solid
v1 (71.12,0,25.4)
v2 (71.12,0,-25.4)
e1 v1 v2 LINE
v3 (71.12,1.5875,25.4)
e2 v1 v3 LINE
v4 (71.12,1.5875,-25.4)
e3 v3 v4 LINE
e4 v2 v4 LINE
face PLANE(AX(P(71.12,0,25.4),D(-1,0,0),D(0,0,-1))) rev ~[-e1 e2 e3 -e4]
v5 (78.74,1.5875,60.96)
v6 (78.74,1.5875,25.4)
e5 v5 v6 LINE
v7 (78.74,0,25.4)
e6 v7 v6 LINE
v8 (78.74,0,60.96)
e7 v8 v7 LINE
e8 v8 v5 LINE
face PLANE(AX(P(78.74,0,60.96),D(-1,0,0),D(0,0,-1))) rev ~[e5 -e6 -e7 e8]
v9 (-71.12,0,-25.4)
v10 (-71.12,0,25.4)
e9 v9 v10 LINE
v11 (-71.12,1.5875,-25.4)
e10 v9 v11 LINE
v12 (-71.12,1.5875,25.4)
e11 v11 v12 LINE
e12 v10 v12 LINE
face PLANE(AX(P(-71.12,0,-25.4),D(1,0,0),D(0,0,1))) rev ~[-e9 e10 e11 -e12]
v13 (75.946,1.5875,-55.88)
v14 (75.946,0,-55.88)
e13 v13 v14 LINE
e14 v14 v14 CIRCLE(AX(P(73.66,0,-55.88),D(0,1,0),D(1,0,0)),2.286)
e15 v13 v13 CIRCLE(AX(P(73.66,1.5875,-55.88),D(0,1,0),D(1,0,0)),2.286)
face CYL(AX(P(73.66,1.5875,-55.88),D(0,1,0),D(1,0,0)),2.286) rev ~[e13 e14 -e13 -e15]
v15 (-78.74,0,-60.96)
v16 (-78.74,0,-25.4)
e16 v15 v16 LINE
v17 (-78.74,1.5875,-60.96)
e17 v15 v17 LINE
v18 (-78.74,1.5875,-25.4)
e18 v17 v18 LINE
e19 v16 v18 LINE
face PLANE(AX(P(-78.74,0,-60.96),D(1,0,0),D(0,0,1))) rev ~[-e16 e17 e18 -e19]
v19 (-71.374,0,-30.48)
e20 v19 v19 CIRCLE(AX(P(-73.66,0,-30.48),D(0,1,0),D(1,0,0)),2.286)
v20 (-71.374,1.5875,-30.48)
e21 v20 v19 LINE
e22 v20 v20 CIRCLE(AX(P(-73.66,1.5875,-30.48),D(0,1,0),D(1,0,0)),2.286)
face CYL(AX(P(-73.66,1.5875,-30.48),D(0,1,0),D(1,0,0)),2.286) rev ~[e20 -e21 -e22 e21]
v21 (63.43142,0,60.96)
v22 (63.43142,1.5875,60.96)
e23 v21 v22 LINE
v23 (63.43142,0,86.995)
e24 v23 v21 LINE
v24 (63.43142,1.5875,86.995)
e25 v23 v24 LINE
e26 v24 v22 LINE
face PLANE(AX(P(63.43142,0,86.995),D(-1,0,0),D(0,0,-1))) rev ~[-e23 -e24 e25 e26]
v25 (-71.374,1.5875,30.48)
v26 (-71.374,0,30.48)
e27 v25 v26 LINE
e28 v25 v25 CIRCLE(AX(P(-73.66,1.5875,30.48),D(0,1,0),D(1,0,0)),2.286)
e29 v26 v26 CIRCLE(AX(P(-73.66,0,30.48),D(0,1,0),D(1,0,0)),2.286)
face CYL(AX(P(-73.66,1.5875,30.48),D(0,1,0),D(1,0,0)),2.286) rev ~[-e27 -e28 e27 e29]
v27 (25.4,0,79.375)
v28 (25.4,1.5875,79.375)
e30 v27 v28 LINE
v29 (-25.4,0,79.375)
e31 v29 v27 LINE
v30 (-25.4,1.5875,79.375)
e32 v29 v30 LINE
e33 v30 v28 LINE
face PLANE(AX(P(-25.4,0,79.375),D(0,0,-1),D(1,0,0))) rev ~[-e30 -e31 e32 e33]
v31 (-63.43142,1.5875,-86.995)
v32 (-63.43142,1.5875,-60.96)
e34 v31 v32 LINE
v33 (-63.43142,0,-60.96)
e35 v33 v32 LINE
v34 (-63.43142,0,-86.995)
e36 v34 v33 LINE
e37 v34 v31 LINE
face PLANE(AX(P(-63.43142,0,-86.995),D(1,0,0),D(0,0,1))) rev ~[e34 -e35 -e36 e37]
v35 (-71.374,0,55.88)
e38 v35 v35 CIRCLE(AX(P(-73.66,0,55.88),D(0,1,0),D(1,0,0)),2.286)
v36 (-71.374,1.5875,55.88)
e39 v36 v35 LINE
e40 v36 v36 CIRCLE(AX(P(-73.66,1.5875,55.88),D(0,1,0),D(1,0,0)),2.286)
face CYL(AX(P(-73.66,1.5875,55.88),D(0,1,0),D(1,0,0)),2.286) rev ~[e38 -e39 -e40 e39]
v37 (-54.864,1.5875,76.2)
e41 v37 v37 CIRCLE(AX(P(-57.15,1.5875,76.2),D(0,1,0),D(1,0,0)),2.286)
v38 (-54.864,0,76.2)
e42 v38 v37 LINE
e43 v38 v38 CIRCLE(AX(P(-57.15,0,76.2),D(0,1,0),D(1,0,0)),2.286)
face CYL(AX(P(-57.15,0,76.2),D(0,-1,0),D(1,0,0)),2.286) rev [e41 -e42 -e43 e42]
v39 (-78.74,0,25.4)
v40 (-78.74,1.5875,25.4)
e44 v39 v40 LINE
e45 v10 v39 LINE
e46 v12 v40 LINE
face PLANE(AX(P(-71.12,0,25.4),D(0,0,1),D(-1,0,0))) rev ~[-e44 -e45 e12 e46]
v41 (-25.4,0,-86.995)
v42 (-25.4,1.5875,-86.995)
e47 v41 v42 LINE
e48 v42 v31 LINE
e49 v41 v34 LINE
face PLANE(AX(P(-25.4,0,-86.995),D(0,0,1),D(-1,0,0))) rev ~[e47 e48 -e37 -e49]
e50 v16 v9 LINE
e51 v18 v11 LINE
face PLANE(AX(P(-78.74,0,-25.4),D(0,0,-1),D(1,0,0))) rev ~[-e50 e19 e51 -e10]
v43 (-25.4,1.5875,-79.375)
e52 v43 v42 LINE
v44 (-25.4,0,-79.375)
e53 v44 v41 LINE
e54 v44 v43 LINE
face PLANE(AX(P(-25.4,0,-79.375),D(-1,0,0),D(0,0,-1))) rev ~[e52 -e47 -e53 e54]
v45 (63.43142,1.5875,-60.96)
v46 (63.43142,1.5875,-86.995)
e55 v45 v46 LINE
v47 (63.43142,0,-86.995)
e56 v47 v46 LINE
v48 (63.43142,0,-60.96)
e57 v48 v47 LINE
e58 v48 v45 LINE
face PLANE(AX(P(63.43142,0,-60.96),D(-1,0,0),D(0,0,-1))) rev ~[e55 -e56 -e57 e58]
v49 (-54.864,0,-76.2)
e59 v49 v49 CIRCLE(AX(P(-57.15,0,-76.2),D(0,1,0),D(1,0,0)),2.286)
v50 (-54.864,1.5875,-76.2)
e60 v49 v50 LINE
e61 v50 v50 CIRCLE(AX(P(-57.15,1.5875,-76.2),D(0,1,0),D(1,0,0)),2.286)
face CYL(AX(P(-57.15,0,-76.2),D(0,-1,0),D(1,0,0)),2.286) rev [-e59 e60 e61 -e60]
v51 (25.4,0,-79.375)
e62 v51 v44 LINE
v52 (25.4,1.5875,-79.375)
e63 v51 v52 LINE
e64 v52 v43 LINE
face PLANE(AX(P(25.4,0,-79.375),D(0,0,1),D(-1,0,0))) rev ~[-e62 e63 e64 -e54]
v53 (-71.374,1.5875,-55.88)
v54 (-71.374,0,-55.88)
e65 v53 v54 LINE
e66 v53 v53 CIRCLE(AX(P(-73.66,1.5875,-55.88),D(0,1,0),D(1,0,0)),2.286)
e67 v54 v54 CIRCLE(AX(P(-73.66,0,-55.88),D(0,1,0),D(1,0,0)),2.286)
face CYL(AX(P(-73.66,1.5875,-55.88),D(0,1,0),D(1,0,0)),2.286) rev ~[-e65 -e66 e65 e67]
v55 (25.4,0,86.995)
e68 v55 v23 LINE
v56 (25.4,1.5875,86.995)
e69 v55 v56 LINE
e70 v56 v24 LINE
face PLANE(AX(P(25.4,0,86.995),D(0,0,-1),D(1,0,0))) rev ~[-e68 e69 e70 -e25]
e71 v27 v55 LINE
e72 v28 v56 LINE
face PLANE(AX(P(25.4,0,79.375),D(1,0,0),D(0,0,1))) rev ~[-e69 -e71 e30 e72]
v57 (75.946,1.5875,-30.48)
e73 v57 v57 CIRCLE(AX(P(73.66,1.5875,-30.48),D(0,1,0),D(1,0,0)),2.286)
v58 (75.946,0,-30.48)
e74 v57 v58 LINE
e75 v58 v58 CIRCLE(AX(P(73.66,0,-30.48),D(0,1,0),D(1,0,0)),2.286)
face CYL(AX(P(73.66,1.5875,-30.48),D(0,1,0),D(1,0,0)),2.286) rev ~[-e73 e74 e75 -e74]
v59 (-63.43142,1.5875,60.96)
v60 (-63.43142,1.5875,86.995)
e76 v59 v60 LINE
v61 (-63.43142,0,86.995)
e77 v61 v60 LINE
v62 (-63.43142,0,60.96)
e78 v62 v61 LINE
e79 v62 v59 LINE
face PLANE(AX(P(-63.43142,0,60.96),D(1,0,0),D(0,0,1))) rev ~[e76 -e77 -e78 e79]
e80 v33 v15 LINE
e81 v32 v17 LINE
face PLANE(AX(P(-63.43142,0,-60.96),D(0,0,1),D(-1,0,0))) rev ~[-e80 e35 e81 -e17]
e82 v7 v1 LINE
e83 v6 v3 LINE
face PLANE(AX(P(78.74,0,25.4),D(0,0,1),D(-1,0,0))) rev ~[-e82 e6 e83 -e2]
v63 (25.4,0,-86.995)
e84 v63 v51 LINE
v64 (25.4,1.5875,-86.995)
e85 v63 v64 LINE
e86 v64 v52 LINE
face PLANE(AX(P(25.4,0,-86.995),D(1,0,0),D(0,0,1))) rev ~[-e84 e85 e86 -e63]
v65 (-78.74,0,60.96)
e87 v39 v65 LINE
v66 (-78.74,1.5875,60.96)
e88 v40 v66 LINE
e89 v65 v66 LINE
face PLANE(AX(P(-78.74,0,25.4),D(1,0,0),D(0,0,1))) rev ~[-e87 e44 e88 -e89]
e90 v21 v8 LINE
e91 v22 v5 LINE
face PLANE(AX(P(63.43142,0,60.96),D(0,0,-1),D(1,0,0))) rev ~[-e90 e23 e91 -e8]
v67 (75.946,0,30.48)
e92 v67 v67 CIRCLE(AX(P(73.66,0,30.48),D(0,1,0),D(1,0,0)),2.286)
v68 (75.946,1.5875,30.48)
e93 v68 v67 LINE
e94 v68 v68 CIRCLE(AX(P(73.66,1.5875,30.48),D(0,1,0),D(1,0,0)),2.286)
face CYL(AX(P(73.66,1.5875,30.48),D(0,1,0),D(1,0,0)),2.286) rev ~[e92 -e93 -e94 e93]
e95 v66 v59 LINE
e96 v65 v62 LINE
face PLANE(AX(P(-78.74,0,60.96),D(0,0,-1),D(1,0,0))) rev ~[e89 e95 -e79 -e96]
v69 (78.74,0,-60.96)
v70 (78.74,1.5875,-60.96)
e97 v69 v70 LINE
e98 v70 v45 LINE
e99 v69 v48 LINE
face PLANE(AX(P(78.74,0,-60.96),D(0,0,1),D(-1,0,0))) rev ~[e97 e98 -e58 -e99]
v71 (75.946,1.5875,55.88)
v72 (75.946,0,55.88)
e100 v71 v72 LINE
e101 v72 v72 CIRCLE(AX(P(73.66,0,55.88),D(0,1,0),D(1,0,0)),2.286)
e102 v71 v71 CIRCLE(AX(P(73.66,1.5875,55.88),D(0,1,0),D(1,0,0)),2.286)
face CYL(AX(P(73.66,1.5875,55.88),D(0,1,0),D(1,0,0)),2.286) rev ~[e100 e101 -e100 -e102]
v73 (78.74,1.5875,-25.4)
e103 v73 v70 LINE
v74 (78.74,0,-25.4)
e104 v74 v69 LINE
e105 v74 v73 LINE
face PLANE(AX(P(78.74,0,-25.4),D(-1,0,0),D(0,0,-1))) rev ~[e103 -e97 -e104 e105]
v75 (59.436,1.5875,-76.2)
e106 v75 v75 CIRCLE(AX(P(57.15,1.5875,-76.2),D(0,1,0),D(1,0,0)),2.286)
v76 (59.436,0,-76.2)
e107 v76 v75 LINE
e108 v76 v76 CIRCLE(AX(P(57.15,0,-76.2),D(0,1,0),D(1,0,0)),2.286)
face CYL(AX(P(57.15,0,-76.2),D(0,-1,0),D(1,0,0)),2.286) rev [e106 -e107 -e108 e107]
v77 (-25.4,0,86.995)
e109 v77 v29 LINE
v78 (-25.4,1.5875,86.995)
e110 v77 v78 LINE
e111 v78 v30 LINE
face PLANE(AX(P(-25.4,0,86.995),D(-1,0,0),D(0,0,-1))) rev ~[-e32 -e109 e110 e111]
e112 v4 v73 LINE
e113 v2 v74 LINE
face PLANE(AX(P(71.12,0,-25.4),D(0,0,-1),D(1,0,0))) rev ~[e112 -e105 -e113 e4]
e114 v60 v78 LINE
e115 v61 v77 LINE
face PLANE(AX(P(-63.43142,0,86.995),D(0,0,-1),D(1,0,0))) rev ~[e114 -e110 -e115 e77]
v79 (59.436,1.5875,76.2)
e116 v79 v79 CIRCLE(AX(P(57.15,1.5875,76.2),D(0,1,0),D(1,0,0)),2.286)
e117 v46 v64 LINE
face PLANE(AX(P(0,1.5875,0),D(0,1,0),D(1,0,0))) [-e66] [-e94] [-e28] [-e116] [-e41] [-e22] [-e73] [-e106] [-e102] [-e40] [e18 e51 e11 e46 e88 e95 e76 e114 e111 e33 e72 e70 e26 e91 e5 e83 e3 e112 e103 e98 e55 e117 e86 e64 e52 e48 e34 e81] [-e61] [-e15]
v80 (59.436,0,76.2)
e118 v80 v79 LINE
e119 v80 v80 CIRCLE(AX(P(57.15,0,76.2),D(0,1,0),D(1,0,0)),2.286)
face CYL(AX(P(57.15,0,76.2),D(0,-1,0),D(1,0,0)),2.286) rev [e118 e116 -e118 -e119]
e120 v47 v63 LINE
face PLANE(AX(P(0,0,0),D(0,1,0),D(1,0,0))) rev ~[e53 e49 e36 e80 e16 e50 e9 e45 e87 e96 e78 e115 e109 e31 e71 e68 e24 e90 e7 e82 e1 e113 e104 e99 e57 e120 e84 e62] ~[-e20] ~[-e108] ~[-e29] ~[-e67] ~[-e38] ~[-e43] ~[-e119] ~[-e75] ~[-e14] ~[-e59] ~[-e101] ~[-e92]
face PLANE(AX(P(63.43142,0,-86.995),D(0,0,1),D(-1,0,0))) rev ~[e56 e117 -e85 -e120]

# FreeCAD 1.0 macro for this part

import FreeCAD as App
import Part
import Sketcher
Q = App.Units.Quantity

doc = App.newDocument("Part")
body = doc.addObject("PartDesign::Body", "Body")

sketch1 = body.newObject("Sketcher::SketchObject", "Sketch")
sketch1.AttachmentSupport = (doc.getObject("XZ_Plane"), [""])
sketch1.MapMode = "FlatFace"
sketch1.addGeometry([
    Part.LineSegment(App.Vector(-25.4, -87, 0), App.Vector(-63.4, -87, 0)),
    Part.LineSegment(App.Vector(-63.4, -87, 0), App.Vector(-63.4, -61, 0)),
    Part.LineSegment(App.Vector(-63.4, -61, 0), App.Vector(-78.7, -61, 0)),
    Part.LineSegment(App.Vector(-78.7, -61, 0), App.Vector(-78.7, -25.4, 0)),
    Part.LineSegment(App.Vector(-78.7, -25.4, 0), App.Vector(-71.1, -25.4, 0)),
    Part.LineSegment(App.Vector(-71.1, -25.4, 0), App.Vector(-71.1, 25.4, 0)),
    Part.LineSegment(App.Vector(-71.1, 25.4, 0), App.Vector(-78.7, 25.4, 0)),
    Part.LineSegment(App.Vector(-78.7, 25.4, 0), App.Vector(-78.7, 61, 0)),
    Part.LineSegment(App.Vector(-78.7, 61, 0), App.Vector(-63.4, 61, 0)),
    Part.LineSegment(App.Vector(-63.4, 61, 0), App.Vector(-63.4, 87, 0)),
    Part.LineSegment(App.Vector(-63.4, 87, 0), App.Vector(-25.4, 87, 0)),
    Part.LineSegment(App.Vector(-25.4, 87, 0), App.Vector(-25.4, 79.4, 0)),
    Part.LineSegment(App.Vector(-25.4, 79.4, 0), App.Vector(25.4, 79.4, 0)),
    Part.LineSegment(App.Vector(25.4, 79.4, 0), App.Vector(25.4, 87, 0)),
    Part.LineSegment(App.Vector(25.4, 87, 0), App.Vector(63.4, 87, 0)),
    Part.LineSegment(App.Vector(63.4, 87, 0), App.Vector(63.4, 61, 0)),
    Part.LineSegment(App.Vector(63.4, 61, 0), App.Vector(78.7, 61, 0)),
    Part.LineSegment(App.Vector(78.7, 61, 0), App.Vector(78.7, 25.4, 0)),
    Part.LineSegment(App.Vector(78.7, 25.4, 0), App.Vector(71.1, 25.4, 0)),
    Part.LineSegment(App.Vector(71.1, 25.4, 0), App.Vector(71.1, -25.4, 0)),
    Part.LineSegment(App.Vector(71.1, -25.4, 0), App.Vector(78.7, -25.4, 0)),
    Part.LineSegment(App.Vector(78.7, -25.4, 0), App.Vector(78.7, -61, 0)),
    Part.LineSegment(App.Vector(78.7, -61, 0), App.Vector(63.4, -61, 0)),
    Part.LineSegment(App.Vector(63.4, -61, 0), App.Vector(63.4, -87, 0)),
    Part.LineSegment(App.Vector(63.4, -87, 0), App.Vector(25.4, -87, 0)),
    Part.LineSegment(App.Vector(25.4, -87, 0), App.Vector(25.4, -79.4, 0)),
    Part.LineSegment(App.Vector(25.4, -79.4, 0), App.Vector(-25.4, -79.4, 0)),
    Part.LineSegment(App.Vector(-25.4, -79.4, 0), App.Vector(-25.4, -87, 0)),
    Part.Circle(App.Vector(-57.1, 76.2, 0), App.Vector(0, 0, 1), 2.3),
    Part.Circle(App.Vector(57.1, 76.2, 0), App.Vector(0, 0, 1), 2.3),
    Part.Circle(App.Vector(-57.1, -76.2, 0), App.Vector(0, 0, 1), 2.3),
    Part.Circle(App.Vector(57.1, -76.2, 0), App.Vector(0, 0, 1), 2.3),
], False)
sketch1.addConstraint([
    Sketcher.Constraint("Coincident", 0, 2, 1, 1),
    Sketcher.Constraint("Coincident", 1, 2, 2, 1),
    Sketcher.Constraint("Coincident", 2, 2, 3, 1),
    Sketcher.Constraint("Coincident", 3, 2, 4, 1),
    Sketcher.Constraint("Coincident", 4, 2, 5, 1),
    Sketcher.Constraint("Coincident", 5, 2, 6, 1),
    Sketcher.Constraint("Coincident", 6, 2, 7, 1),
    Sketcher.Constraint("Coincident", 7, 2, 8, 1),
    Sketcher.Constraint("Coincident", 8, 2, 9, 1),
    Sketcher.Constraint("Coincident", 9, 2, 10, 1),
    Sketcher.Constraint("Coincident", 10, 2, 11, 1),
    Sketcher.Constraint("Coincident", 11, 2, 12, 1),
    Sketcher.Constraint("Coincident", 12, 2, 13, 1),
    Sketcher.Constraint("Coincident", 13, 2, 14, 1),
    Sketcher.Constraint("Coincident", 14, 2, 15, 1),
    Sketcher.Constraint("Coincident", 15, 2, 16, 1),
    Sketcher.Constraint("Coincident", 16, 2, 17, 1),
    Sketcher.Constraint("Coincident", 17, 2, 18, 1),
    Sketcher.Constraint("Coincident", 18, 2, 19, 1),
    Sketcher.Constraint("Coincident", 19, 2, 20, 1),
    Sketcher.Constraint("Coincident", 20, 2, 21, 1),
    Sketcher.Constraint("Coincident", 21, 2, 22, 1),
    Sketcher.Constraint("Coincident", 22, 2, 23, 1),
    Sketcher.Constraint("Coincident", 23, 2, 24, 1),
    Sketcher.Constraint("Coincident", 24, 2, 25, 1),
    Sketcher.Constraint("Coincident", 25, 2, 26, 1),
    Sketcher.Constraint("Coincident", 26, 2, 27, 1),
    Sketcher.Constraint("Coincident", 27, 2, 0, 1),
    Sketcher.Constraint("Horizontal", 0),
    Sketcher.Constraint("Vertical", 1),
    Sketcher.Constraint("Horizontal", 2),
    Sketcher.Constraint("Vertical", 3),
    Sketcher.Constraint("Horizontal", 4),
    Sketcher.Constraint("Vertical", 5),
    Sketcher.Constraint("Horizontal", 6),
    Sketcher.Constraint("Vertical", 7),
    Sketcher.Constraint("Horizontal", 8),
    Sketcher.Constraint("Vertical", 9),
    Sketcher.Constraint("Horizontal", 10),
    Sketcher.Constraint("Vertical", 11),
    Sketcher.Constraint("Horizontal", 12),
    Sketcher.Constraint("Vertical", 13),
    Sketcher.Constraint("Horizontal", 14),
    Sketcher.Constraint("Vertical", 15),
    Sketcher.Constraint("Horizontal", 16),
    Sketcher.Constraint("Vertical", 17),
    Sketcher.Constraint("Horizontal", 18),
    Sketcher.Constraint("Vertical", 19),
    Sketcher.Constraint("Horizontal", 20),
    Sketcher.Constraint("Vertical", 21),
    Sketcher.Constraint("Horizontal", 22),
    Sketcher.Constraint("Vertical", 23),
    Sketcher.Constraint("Horizontal", 24),
    Sketcher.Constraint("Vertical", 25),
    Sketcher.Constraint("Horizontal", 26),
    Sketcher.Constraint("Vertical", 27),
    Sketcher.Constraint("Equal", 28, 29),
    Sketcher.Constraint("Equal", 29, 30),
    Sketcher.Constraint("Equal", 30, 31),
    Sketcher.Constraint("Symmetric", 29, 3, 30, 3, -1, 1),
    Sketcher.Constraint("Symmetric", 28, 3, 31, 3, -1, 1),
    Sketcher.Constraint("Symmetric", 0, 2, 14, 2, -1, 1),
    Sketcher.Constraint("Symmetric", 2, 2, 16, 2, -1, 1),
    Sketcher.Constraint("Symmetric", 4, 2, 18, 2, -1, 1),
    Sketcher.Constraint("Symmetric", 6, 2, 20, 2, -1, 1),
    Sketcher.Constraint("Symmetric", 8, 2, 22, 2, -1, 1),
    Sketcher.Constraint("Symmetric", 10, 2, 24, 2, -1, 1),
    Sketcher.Constraint("Symmetric", 12, 2, 26, 2, -1, 1),
    Sketcher.Constraint("Symmetric", 28, 3, 29, 3, -2),
    Sketcher.Constraint("Symmetric", 10, 2, 13, 2, -2),
    Sketcher.Constraint("Symmetric", 8, 2, 15, 2, -2),
    Sketcher.Constraint("Symmetric", 6, 2, 17, 2, -2),
    Sketcher.Constraint("Equal", 26, 5),
    Sketcher.Constraint("Equal", 20, 11),
    Sketcher.Constraint("Diameter", 28, Q("0.18 in")),
    Sketcher.Constraint("DistanceX", 12, 1, 12, 2, Q("2 in")),
    Sketcher.Constraint("DistanceX", 4, 1, 4, 2, Q("0.3 in")),
    Sketcher.Constraint("DistanceY", 3, 1, 3, 2, Q("1.4 in")),
    Sketcher.Constraint("DistanceY", -1, 1, 28, 3, Q("3 in")),
    Sketcher.Constraint("DistanceX", 2, 2, -1, 1, Q("3.1 in")),
    Sketcher.Constraint("DistanceX", 28, 3, 29, 3, Q("4.5 in")),
    Sketcher.Constraint("DistanceY", 1, 1, 1, 2, Q("1.025 in")),
    Sketcher.Constraint("DistanceX", 0, 2, 0, 1, Q("1.4973 in")),
])
pad1 = body.newObject("PartDesign::Pad", "Pad")
pad1.Profile = sketch1
pad1.Length = Q("0.0625 in")
pad1.Reversed = True

sketch2 = body.newObject("Sketcher::SketchObject", "Sketch001")
sketch2.AttachmentSupport = (doc.getObject("XZ_Plane"), [""])
sketch2.MapMode = "FlatFace"
sketch2.AttachmentOffset = App.Placement(App.Vector(0, 0, -0.0625 * 25.4), App.Rotation())
sketch2.addGeometry([
    Part.Circle(App.Vector(-73.7, 30.5, 0), App.Vector(0, 0, 1), 2.3),
    Part.Circle(App.Vector(-73.7, 55.9, 0), App.Vector(0, 0, 1), 2.3),
    Part.Circle(App.Vector(73.7, 55.9, 0), App.Vector(0, 0, 1), 2.3),
    Part.Circle(App.Vector(73.7, 30.5, 0), App.Vector(0, 0, 1), 2.3),
    Part.Circle(App.Vector(73.7, -30.5, 0), App.Vector(0, 0, 1), 2.3),
    Part.Circle(App.Vector(73.7, -55.9, 0), App.Vector(0, 0, 1), 2.3),
    Part.Circle(App.Vector(-73.7, -55.9, 0), App.Vector(0, 0, 1), 2.3),
    Part.Circle(App.Vector(-73.7, -30.5, 0), App.Vector(0, 0, 1), 2.3),
], False)
sketch2.addConstraint([
    Sketcher.Constraint("Equal", 0, 1),
    Sketcher.Constraint("Equal", 1, 2),
    Sketcher.Constraint("Equal", 2, 3),
    Sketcher.Constraint("Equal", 3, 4),
    Sketcher.Constraint("Equal", 4, 5),
    Sketcher.Constraint("Equal", 5, 6),
    Sketcher.Constraint("Equal", 6, 7),
    Sketcher.Constraint("Symmetric", 0, 3, 4, 3, -1, 1),
    Sketcher.Constraint("Symmetric", 1, 3, 5, 3, -1, 1),
    Sketcher.Constraint("Symmetric", 2, 3, 6, 3, -1, 1),
    Sketcher.Constraint("Symmetric", 3, 3, 7, 3, -1, 1),
    Sketcher.Constraint("Symmetric", 1, 3, 2, 3, -2),
    Sketcher.Constraint("Symmetric", 0, 3, 3, 3, -2),
    Sketcher.Constraint("Vertical", 0, 3, 1, 3),
    Sketcher.Constraint("Diameter", 0, Q("0.18 in")),
    Sketcher.Constraint("DistanceY", 0, 3, 1, 3, Q("1 in")),
    Sketcher.Constraint("DistanceX", 0, 3, -1, 1, Q("2.9 in")),
    Sketcher.Constraint("DistanceY", -1, 1, 0, 3, Q("1.2 in")),
])
pocket1 = body.newObject("PartDesign::Pocket", "Pocket")
pocket1.Profile = sketch2
pocket1.Type = "ThroughAll"
pocket1.Reversed = True

doc.recompute()
